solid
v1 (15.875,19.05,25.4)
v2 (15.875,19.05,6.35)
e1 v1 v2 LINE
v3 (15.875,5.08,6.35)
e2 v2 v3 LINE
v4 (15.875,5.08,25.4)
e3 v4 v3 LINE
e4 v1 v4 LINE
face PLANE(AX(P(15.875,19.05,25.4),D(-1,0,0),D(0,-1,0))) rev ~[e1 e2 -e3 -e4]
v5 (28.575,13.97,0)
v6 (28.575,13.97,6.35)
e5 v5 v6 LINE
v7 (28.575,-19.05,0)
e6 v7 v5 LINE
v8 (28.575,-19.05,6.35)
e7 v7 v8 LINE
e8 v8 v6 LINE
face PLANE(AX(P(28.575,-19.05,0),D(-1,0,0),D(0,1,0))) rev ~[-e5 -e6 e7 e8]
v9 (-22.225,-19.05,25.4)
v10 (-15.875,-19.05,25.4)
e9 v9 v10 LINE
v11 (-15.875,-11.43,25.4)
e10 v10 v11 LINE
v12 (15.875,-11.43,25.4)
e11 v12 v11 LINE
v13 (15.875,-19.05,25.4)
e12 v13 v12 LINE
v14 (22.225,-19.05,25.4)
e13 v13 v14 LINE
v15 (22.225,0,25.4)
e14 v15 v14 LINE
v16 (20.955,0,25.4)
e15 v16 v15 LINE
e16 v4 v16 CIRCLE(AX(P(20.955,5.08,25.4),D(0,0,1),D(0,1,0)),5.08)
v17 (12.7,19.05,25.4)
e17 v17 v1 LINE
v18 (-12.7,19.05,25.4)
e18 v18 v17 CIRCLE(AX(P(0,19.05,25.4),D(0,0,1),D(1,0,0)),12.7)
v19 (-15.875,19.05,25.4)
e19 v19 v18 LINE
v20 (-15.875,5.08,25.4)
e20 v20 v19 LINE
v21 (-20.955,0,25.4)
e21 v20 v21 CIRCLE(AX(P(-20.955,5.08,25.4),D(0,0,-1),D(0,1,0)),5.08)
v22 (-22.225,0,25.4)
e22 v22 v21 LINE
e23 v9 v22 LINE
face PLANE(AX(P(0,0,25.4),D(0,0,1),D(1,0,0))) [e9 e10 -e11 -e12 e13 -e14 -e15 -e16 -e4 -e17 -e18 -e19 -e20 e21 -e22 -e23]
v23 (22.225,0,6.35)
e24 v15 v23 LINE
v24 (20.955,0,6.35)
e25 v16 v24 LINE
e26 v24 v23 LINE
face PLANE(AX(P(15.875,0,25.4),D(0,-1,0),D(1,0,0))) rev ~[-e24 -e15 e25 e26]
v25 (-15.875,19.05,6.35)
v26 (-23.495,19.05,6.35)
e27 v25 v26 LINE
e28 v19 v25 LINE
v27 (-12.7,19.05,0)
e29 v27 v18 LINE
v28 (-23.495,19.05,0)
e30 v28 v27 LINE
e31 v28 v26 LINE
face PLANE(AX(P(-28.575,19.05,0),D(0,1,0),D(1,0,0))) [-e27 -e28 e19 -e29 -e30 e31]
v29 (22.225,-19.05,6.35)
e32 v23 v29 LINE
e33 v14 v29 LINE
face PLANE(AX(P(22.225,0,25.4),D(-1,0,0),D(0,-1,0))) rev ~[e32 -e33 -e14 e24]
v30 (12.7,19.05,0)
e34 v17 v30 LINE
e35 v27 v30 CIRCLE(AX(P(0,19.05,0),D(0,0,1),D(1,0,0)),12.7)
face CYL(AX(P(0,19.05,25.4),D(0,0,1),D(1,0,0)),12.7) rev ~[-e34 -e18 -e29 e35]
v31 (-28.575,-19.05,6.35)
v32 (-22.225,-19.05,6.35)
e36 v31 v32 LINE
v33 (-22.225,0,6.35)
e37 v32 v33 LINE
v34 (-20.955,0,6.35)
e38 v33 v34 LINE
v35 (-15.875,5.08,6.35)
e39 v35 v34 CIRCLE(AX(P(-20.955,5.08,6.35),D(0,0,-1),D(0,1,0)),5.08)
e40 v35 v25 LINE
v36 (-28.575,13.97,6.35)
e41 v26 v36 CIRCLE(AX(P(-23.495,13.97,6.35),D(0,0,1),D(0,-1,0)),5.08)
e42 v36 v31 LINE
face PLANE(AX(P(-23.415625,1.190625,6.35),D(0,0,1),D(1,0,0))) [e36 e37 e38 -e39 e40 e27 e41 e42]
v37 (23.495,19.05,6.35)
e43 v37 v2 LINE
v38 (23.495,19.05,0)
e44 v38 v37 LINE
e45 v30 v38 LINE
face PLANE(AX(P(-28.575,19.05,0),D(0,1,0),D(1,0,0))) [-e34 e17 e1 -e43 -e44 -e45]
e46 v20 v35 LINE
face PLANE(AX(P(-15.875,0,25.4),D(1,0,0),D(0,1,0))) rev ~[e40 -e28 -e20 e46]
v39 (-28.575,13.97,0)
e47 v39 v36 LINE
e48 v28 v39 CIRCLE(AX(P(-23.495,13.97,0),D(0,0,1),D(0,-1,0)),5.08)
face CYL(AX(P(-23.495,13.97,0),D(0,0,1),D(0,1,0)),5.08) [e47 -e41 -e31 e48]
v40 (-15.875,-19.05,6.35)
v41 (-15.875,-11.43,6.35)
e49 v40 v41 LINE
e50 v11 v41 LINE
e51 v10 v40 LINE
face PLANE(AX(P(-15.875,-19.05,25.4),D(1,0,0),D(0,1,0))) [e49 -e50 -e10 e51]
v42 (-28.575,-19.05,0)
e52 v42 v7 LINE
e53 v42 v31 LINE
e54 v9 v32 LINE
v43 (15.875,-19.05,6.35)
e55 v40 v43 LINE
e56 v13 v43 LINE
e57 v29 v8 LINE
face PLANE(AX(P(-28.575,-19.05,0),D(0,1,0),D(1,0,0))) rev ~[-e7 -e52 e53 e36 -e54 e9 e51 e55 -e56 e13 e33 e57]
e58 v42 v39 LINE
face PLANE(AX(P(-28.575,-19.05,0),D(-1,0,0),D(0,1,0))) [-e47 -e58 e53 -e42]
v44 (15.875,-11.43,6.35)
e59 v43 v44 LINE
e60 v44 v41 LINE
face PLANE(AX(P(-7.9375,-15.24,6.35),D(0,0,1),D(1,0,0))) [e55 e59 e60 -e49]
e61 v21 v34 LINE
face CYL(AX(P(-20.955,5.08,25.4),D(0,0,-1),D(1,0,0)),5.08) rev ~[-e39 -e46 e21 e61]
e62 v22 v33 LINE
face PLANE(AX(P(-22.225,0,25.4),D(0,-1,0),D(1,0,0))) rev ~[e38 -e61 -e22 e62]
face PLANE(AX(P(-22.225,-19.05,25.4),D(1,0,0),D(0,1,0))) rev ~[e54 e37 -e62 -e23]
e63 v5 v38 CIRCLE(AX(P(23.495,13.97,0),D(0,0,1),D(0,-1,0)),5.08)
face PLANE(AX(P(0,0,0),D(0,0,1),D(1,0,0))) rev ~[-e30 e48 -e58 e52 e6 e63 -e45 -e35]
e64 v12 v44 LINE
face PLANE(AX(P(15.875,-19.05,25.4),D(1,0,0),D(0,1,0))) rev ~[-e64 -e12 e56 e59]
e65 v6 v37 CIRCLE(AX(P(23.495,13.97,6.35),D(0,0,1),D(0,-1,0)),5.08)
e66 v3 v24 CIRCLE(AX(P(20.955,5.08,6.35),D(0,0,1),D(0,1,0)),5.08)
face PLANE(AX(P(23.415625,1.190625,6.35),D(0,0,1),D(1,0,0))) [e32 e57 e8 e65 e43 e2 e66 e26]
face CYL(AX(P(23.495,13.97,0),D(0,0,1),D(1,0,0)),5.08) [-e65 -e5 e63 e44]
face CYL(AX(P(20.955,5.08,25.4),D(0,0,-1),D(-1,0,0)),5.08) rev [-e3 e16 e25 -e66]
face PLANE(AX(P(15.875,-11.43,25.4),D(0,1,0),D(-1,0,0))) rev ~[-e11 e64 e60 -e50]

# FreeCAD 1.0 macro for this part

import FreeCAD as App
import Part
import Sketcher
Q = App.Units.Quantity


def edges_at(feature, points):
    """Names of the edges that pass closest to the given points."""
    edges = feature.Shape.Edges
    near = lambda p: min(range(len(edges)), key=lambda i: edges[i].distToShape(Part.Vertex(*p))[0])
    return sorted({f"Edge{near(p) + 1}" for p in points})

doc = App.newDocument("Part")
body = doc.addObject("PartDesign::Body", "Body")

# Sketch on XY plane
sketch1 = body.newObject("Sketcher::SketchObject", "Sketch")
sketch1.AttachmentSupport = (doc.getObject("XY_Plane"), [""])
sketch1.MapMode = "FlatFace"
sketch1.addGeometry(Part.LineSegment(App.Vector(-29, 19, 0), App.Vector(-29, -19, 0)), False)
sketch1.addGeometry(Part.LineSegment(App.Vector(-29, -19, 0), App.Vector(29, -19, 0)), False)
sketch1.addGeometry(Part.LineSegment(App.Vector(29, -19, 0), App.Vector(29, 19, 0)), False)
sketch1.addGeometry(Part.LineSegment(App.Vector(29, 19, 0), App.Vector(-29, 19, 0)), False)
sketch1.addConstraint(Sketcher.Constraint("Coincident", 0, 2, 1, 1))
sketch1.addConstraint(Sketcher.Constraint("Coincident", 1, 2, 2, 1))
sketch1.addConstraint(Sketcher.Constraint("Coincident", 2, 2, 3, 1))
sketch1.addConstraint(Sketcher.Constraint("Coincident", 3, 2, 0, 1))
sketch1.addConstraint(Sketcher.Constraint("Vertical", 0))
sketch1.addConstraint(Sketcher.Constraint("Horizontal", 1))
sketch1.addConstraint(Sketcher.Constraint("Vertical", 2))
sketch1.addConstraint(Sketcher.Constraint("Horizontal", 3))
sketch1.addConstraint(Sketcher.Constraint("Symmetric", 0, 2, 2, 2, -1, 1))
sketch1.addConstraint(Sketcher.Constraint("DistanceY", 0, 2, 0, 1, Q("1.5 in")))
sketch1.addConstraint(Sketcher.Constraint("DistanceX", 1, 1, 1, 2, Q("2.25 in")))
pad1 = body.newObject("PartDesign::Pad", "Pad")
pad1.Profile = sketch1
pad1.Length = Q("1 in")

# Sketch on XY plane
sketch2 = body.newObject("Sketcher::SketchObject", "Sketch001")
sketch2.AttachmentSupport = (doc.getObject("XY_Plane"), [""])
sketch2.MapMode = "FlatFace"
sketch2.AttachmentOffset = App.Placement(App.Vector(0, 0, 1 * 25.4), App.Rotation())
sketch2.addGeometry(Part.LineSegment(App.Vector(-16, -11, 0), App.Vector(-16, -19, 0)), False)
sketch2.addGeometry(Part.LineSegment(App.Vector(-16, -19, 0), App.Vector(16, -19, 0)), False)
sketch2.addGeometry(Part.LineSegment(App.Vector(16, -19, 0), App.Vector(16, -11, 0)), False)
sketch2.addGeometry(Part.LineSegment(App.Vector(16, -11, 0), App.Vector(-16, -11, 0)), False)
sketch2.addGeometry(Part.LineSegment(App.Vector(-29, 19, 0), App.Vector(-29, -19, 0)), False)
sketch2.addGeometry(Part.LineSegment(App.Vector(-29, -19, 0), App.Vector(-22, -19, 0)), False)
sketch2.addGeometry(Part.LineSegment(App.Vector(-22, -19, 0), App.Vector(-22, 0, 0)), False)
sketch2.addGeometry(Part.LineSegment(App.Vector(-22, 0, 0), App.Vector(-16, 0, 0)), False)
sketch2.addGeometry(Part.LineSegment(App.Vector(-16, 0, 0), App.Vector(-16, 19, 0)), False)
sketch2.addGeometry(Part.LineSegment(App.Vector(-16, 19, 0), App.Vector(-29, 19, 0)), False)
sketch2.addGeometry(Part.LineSegment(App.Vector(16, 19, 0), App.Vector(16, 0, 0)), False)
sketch2.addGeometry(Part.LineSegment(App.Vector(16, 0, 0), App.Vector(22, 0, 0)), False)
sketch2.addGeometry(Part.LineSegment(App.Vector(22, 0, 0), App.Vector(22, -19, 0)), False)
sketch2.addGeometry(Part.LineSegment(App.Vector(22, -19, 0), App.Vector(29, -19, 0)), False)
sketch2.addGeometry(Part.LineSegment(App.Vector(29, -19, 0), App.Vector(29, 19, 0)), False)
sketch2.addGeometry(Part.LineSegment(App.Vector(29, 19, 0), App.Vector(16, 19, 0)), False)
sketch2.addConstraint(Sketcher.Constraint("Coincident", 0, 2, 1, 1))
sketch2.addConstraint(Sketcher.Constraint("Coincident", 1, 2, 2, 1))
sketch2.addConstraint(Sketcher.Constraint("Coincident", 2, 2, 3, 1))
sketch2.addConstraint(Sketcher.Constraint("Coincident", 3, 2, 0, 1))
sketch2.addConstraint(Sketcher.Constraint("Coincident", 4, 2, 5, 1))
sketch2.addConstraint(Sketcher.Constraint("Coincident", 5, 2, 6, 1))
sketch2.addConstraint(Sketcher.Constraint("Coincident", 6, 2, 7, 1))
sketch2.addConstraint(Sketcher.Constraint("Coincident", 7, 2, 8, 1))
sketch2.addConstraint(Sketcher.Constraint("Coincident", 8, 2, 9, 1))
sketch2.addConstraint(Sketcher.Constraint("Coincident", 9, 2, 4, 1))
sketch2.addConstraint(Sketcher.Constraint("Coincident", 10, 2, 11, 1))
sketch2.addConstraint(Sketcher.Constraint("Coincident", 11, 2, 12, 1))
sketch2.addConstraint(Sketcher.Constraint("Coincident", 12, 2, 13, 1))
sketch2.addConstraint(Sketcher.Constraint("Coincident", 13, 2, 14, 1))
sketch2.addConstraint(Sketcher.Constraint("Coincident", 14, 2, 15, 1))
sketch2.addConstraint(Sketcher.Constraint("Coincident", 15, 2, 10, 1))
sketch2.addConstraint(Sketcher.Constraint("Vertical", 0))
sketch2.addConstraint(Sketcher.Constraint("Horizontal", 1))
sketch2.addConstraint(Sketcher.Constraint("Vertical", 2))
sketch2.addConstraint(Sketcher.Constraint("Horizontal", 3))
sketch2.addConstraint(Sketcher.Constraint("Vertical", 4))
sketch2.addConstraint(Sketcher.Constraint("Horizontal", 5))
sketch2.addConstraint(Sketcher.Constraint("Vertical", 6))
sketch2.addConstraint(Sketcher.Constraint("Horizontal", 7))
sketch2.addConstraint(Sketcher.Constraint("Vertical", 8))
sketch2.addConstraint(Sketcher.Constraint("Horizontal", 9))
sketch2.addConstraint(Sketcher.Constraint("Vertical", 10))
sketch2.addConstraint(Sketcher.Constraint("Horizontal", 11))
sketch2.addConstraint(Sketcher.Constraint("Vertical", 12))
sketch2.addConstraint(Sketcher.Constraint("Horizontal", 13))
sketch2.addConstraint(Sketcher.Constraint("Vertical", 14))
sketch2.addConstraint(Sketcher.Constraint("Horizontal", 15))
sketch2.addConstraint(Sketcher.Constraint("Symmetric", 1, 2, 8, 2, -1, 1))
sketch2.addConstraint(Sketcher.Constraint("Symmetric", 7, 2, 10, 2, -1, 1))
sketch2.addConstraint(Sketcher.Constraint("Symmetric", 9, 2, 13, 2, -1, 1))
sketch2.addConstraint(Sketcher.Constraint("Symmetric", 0, 2, 15, 2, -1, 1))
sketch2.addConstraint(Sketcher.Constraint("Symmetric", 6, 2, 11, 2, -2))
sketch2.addConstraint(Sketcher.Constraint("Horizontal", 1, 2, 4, 2))
sketch2.addConstraint(Sketcher.Constraint("Equal", 5, 7))
sketch2.addConstraint(Sketcher.Constraint("DistanceX", 9, 2, 9, 1, Q("0.5 in")))
sketch2.addConstraint(Sketcher.Constraint("DistanceY", 0, 2, 0, 1, Q("0.3 in")))
sketch2.addConstraint(Sketcher.Constraint("DistanceY", 4, 2, 4, 1, Q("1.5 in")))
sketch2.addConstraint(Sketcher.Constraint("DistanceX", 1, 1, 1, 2, Q("1.25 in")))
pocket1 = body.newObject("PartDesign::Pocket", "Pocket")
pocket1.Profile = sketch2
pocket1.Length = Q("0.75 in")

# Sketch on XY plane
sketch3 = body.newObject("Sketcher::SketchObject", "Sketch002")
sketch3.AttachmentSupport = (doc.getObject("XY_Plane"), [""])
sketch3.MapMode = "FlatFace"
sketch3.AttachmentOffset = App.Placement(App.Vector(0, 0, 1 * 25.4), App.Rotation())
sketch3.addGeometry(Part.Circle(App.Vector(0, 19, 0), App.Vector(0, 0, 1), 13), False)
sketch3.addConstraint(Sketcher.Constraint("PointOnObject", 0, 3, -2))
sketch3.addConstraint(Sketcher.Constraint("Diameter", 0, Q("1 in")))
sketch3.addConstraint(Sketcher.Constraint("DistanceY", -1, 1, 0, 3, Q("0.75 in")))
pocket2 = body.newObject("PartDesign::Pocket", "Pocket001")
pocket2.Profile = sketch3
pocket2.Type = "ThroughAll"
doc.recompute()

fillet = body.newObject("PartDesign::Fillet", "Fillet")
fillet.Base = (pocket2, edges_at(pocket2, [(-15.875, 0, 15.875), (15.875, 0, 15.875)]))
fillet.Radius = Q("0.2 in")
doc.recompute()

fillet2 = body.newObject("PartDesign::Fillet", "Fillet001")
fillet2.Base = (fillet, edges_at(fillet, [(28.575, 19.05, 3.175), (-28.575, 19.05, 3.175)]))
fillet2.Radius = Q("0.2 in")

doc.recompute()
